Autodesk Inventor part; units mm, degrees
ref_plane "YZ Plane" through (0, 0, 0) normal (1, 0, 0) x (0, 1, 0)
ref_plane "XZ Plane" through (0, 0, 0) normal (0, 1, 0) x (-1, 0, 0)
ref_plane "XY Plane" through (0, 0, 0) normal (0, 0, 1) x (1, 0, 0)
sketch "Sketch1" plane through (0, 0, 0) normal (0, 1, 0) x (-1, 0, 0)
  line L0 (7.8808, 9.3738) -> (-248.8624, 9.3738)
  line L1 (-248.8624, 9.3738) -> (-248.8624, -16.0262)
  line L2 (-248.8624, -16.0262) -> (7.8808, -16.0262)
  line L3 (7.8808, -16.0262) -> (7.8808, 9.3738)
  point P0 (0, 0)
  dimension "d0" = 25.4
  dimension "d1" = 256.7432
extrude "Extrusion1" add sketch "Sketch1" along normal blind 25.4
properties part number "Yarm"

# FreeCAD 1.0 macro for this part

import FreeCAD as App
import Part
import Sketcher
from FreeCAD import Vector
Q = App.Units.Quantity

doc = App.newDocument("Part")
params = doc.addObject("Spreadsheet::Sheet", "Params")
for row, (alias, value) in enumerate([
    ("sketch1_height", "1 in"),
    ("sketch1_width", "10.108 in"),
    ("pad1_length", "1 in"),
], start=1):
    params.set(f"A{row}", alias)
    params.set(f"B{row}", "=" + value)
    params.setAlias(f"B{row}", alias)

body = doc.addObject("PartDesign::Body", "Body")

# Sketch on XZ plane
sketch1 = doc.addObject("Sketcher::SketchObject", "Sketch")
body.addObject(sketch1)
sketch1.AttachmentSupport = (doc.XZ_Plane, [""])
sketch1.MapMode = "FlatFace"
sketch1.addGeometry(Part.LineSegment(Vector(-8, -16, 0), Vector(-8, 9, 0)), False)
sketch1.addGeometry(Part.LineSegment(Vector(-8, 9, 0), Vector(249, 9, 0)), False)
sketch1.addGeometry(Part.LineSegment(Vector(249, 9, 0), Vector(249, -16, 0)), False)
sketch1.addGeometry(Part.LineSegment(Vector(249, -16, 0), Vector(-8, -16, 0)), False)
sketch1.addConstraint(Sketcher.Constraint("Coincident", 0, 2, 1, 1))
sketch1.addConstraint(Sketcher.Constraint("Coincident", 1, 2, 2, 1))
sketch1.addConstraint(Sketcher.Constraint("Coincident", 2, 2, 3, 1))
sketch1.addConstraint(Sketcher.Constraint("Coincident", 3, 2, 0, 1))
sketch1.addConstraint(Sketcher.Constraint("Vertical", 0))
sketch1.addConstraint(Sketcher.Constraint("Horizontal", 1))
sketch1.addConstraint(Sketcher.Constraint("Vertical", 2))
sketch1.addConstraint(Sketcher.Constraint("Horizontal", 3))
sketch1.addConstraint(Sketcher.Constraint("DistanceY", 0, 1, 0, 2, Q("1 in")))
sketch1.addConstraint(Sketcher.Constraint("DistanceX", 1, 1, 1, 2, Q("10.108 in")))
sketch1.addConstraint(Sketcher.Constraint("DistanceX", 0, 2, -1, 1, Q("7.8808 mm")))
sketch1.addConstraint(Sketcher.Constraint("DistanceY", -1, 1, 0, 2, Q("9.3738 mm")))
sketch1.setExpression("Constraints[8]", "Params.sketch1_height")
sketch1.setExpression("Constraints[9]", "Params.sketch1_width")
pad1 = doc.addObject("PartDesign::Pad", "Pad")
body.addObject(pad1)
pad1.Profile = sketch1
pad1.setExpression("Length", "Params.pad1_length")
pad1.Reversed = True

doc.recompute()
